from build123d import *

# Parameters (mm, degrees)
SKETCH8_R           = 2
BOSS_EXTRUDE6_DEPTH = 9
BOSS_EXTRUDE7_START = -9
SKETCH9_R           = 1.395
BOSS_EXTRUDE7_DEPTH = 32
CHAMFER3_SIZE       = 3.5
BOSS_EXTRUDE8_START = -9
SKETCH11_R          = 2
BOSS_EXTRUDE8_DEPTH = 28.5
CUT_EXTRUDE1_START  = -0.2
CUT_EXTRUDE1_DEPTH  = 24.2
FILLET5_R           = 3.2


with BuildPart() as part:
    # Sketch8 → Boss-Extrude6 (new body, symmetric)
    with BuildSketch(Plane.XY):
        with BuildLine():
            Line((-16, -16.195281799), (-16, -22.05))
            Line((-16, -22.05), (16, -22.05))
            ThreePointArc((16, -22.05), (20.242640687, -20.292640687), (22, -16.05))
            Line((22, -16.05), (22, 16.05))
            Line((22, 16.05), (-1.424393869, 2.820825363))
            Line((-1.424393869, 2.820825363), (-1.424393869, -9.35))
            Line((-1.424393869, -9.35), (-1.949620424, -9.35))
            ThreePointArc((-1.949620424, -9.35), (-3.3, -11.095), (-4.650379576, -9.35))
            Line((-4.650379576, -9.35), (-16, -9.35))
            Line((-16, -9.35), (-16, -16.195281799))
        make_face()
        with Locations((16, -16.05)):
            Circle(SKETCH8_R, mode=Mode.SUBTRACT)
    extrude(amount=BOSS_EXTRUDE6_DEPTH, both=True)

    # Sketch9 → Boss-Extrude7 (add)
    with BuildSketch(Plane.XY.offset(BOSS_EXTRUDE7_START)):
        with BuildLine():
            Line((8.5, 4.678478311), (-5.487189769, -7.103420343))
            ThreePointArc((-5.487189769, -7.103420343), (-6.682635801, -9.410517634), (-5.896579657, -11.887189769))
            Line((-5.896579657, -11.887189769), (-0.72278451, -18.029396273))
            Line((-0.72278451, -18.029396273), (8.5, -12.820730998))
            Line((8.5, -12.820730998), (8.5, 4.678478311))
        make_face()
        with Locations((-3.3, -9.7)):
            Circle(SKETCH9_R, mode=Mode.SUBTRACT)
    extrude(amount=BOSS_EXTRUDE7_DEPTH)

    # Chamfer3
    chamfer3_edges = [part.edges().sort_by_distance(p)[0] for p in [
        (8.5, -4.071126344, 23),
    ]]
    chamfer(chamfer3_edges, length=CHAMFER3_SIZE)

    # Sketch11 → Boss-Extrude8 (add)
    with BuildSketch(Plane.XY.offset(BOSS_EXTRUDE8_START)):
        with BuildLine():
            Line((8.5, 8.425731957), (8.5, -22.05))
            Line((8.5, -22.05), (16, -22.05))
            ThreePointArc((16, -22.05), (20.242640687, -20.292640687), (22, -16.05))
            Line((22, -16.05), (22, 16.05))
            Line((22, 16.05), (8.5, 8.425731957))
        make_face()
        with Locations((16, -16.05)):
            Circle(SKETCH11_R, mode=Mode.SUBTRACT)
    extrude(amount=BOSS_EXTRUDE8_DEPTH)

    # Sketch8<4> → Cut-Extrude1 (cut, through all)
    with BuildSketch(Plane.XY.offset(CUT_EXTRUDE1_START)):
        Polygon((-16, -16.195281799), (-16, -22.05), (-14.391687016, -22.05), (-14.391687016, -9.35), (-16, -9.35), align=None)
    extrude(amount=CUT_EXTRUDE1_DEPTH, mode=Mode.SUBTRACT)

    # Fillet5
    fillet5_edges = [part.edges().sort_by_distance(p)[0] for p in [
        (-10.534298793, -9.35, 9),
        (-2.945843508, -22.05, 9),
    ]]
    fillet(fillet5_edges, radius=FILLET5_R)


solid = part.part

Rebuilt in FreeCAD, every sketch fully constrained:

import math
import FreeCAD as App
import Part
import Sketcher

V = App.Vector


def edges_at(feature, points):
    """Names of the edges that pass closest to the given points."""
    edges = feature.Shape.Edges
    near = lambda p: min(range(len(edges)), key=lambda i: edges[i].distToShape(Part.Vertex(*p))[0])
    return sorted({f"Edge{near(p) + 1}" for p in points})

doc = App.newDocument("Part")
body = doc.addObject("PartDesign::Body", "Body")

# Sketch on XY plane
sketch1 = body.newObject("Sketcher::SketchObject", "Sketch")
sketch1.AttachmentSupport = (doc.getObject("XY_Plane"), [""])
sketch1.MapMode = "FlatFace"
sketch1.addGeometry([
    Part.LineSegment(V(-16, -22.1, 0), V(16, -22.1, 0)),  # 0
    Part.ArcOfCircle(Part.Circle(V(16, -16.1, 0), V(0, 0, 1), 6), math.radians(-90), math.radians(0)),  # 1
    Part.LineSegment(V(22, -16.1, 0), V(22, 16.1, 0)),  # 2
    Part.LineSegment(V(22, 16.1, 0), V(-1.4, 2.8, 0)),  # 3
    Part.LineSegment(V(-1.4, 2.8, 0), V(-1.4, -9.3, 0)),  # 4
    Part.LineSegment(V(-1.4, -9.3, 0), V(-1.9, -9.3, 0)),  # 5
    Part.ArcOfCircle(Part.Circle(V(-3.3, -9.7, 0), V(0, 0, 1), 1.4), math.radians(165), math.radians(375)),  # 6
    Part.LineSegment(V(-4.7, -9.3, 0), V(-16, -9.3, 0)),  # 7
    Part.LineSegment(V(-16, -9.3, 0), V(-16, -22.1, 0)),  # 8
    Part.Circle(V(16, -16.1, 0), V(0, 0, 1), 2),  # 9
], False)
sketch1.addConstraint([
    Sketcher.Constraint("Tangent", 0, 2, 1, 1),
    Sketcher.Constraint("Tangent", 1, 2, 2, 1),
    Sketcher.Constraint("Coincident", 2, 2, 3, 1),
    Sketcher.Constraint("Coincident", 3, 2, 4, 1),
    Sketcher.Constraint("Coincident", 4, 2, 5, 1),
    Sketcher.Constraint("Coincident", 5, 2, 6, 2),
    Sketcher.Constraint("Coincident", 6, 1, 7, 1),
    Sketcher.Constraint("Coincident", 7, 2, 8, 1),
    Sketcher.Constraint("Coincident", 8, 2, 0, 1),
    Sketcher.Constraint("Horizontal", 0),
    Sketcher.Constraint("Vertical", 2),
    Sketcher.Constraint("Vertical", 4),
    Sketcher.Constraint("Horizontal", 5),
    Sketcher.Constraint("Horizontal", 7),
    Sketcher.Constraint("Vertical", 8),
    Sketcher.Constraint("Coincident", 9, 3, 1, 3),
    Sketcher.Constraint("Horizontal", 5, 2, 6, 1),
    Sketcher.Constraint("Diameter", 9, 4.0),
    Sketcher.Constraint("Radius", 1, 6.0),
    Sketcher.Constraint("DistanceX", 0, 1, 0, 2, 32.0),
    Sketcher.Constraint("DistanceY", 2, 1, 2, 2, 32.1),
    Sketcher.Constraint("DistanceY", 8, 2, 8, 1, 12.7),
    Sketcher.Constraint("DistanceX", -1, 1, 1, 3, 16.0),
    Sketcher.Constraint("Radius", 6, 1.395),
    Sketcher.Constraint("DistanceX", 6, 3, -1, 1, 3.3),
    Sketcher.Constraint("DistanceY", 6, 3, -1, 1, 9.7),
    Sketcher.Constraint("DistanceY", 1, 3, -1, 1, 16.05),
    Sketcher.Constraint("Distance", 3, 26.90192),
    Sketcher.Constraint("DistanceX", 5, 2, 5, 1, 0.525227),
])
pad1 = body.newObject("PartDesign::Pad", "Pad")
pad1.Profile = sketch1
pad1.Length = 18
pad1.Midplane = True

# Sketch on XY plane
sketch2 = body.newObject("Sketcher::SketchObject", "Sketch001")
sketch2.AttachmentSupport = (doc.getObject("XY_Plane"), [""])
sketch2.MapMode = "FlatFace"
sketch2.AttachmentOffset = App.Placement(V(0, 0, -9), App.Rotation())
sketch2.addGeometry([
    Part.LineSegment(V(8.5, 4.7, 0), V(-5.5, -7.1, 0)),  # 0
    Part.ArcOfCircle(Part.Circle(V(-3.3, -9.7, 0), V(0, 0, 1), 3.4), math.radians(130), math.radians(220)),  # 1
    Part.LineSegment(V(-5.9, -11.9, 0), V(-0.7, -18, 0)),  # 2
    Part.LineSegment(V(-0.7, -18, 0), V(8.5, -12.8, 0)),  # 3
    Part.LineSegment(V(8.5, -12.8, 0), V(8.5, 4.7, 0)),  # 4
    Part.Circle(V(-3.3, -9.7, 0), V(0, 0, 1), 1.4),  # 5
], False)
sketch2.addConstraint([
    Sketcher.Constraint("Tangent", 0, 2, 1, 1),
    Sketcher.Constraint("Tangent", 1, 2, 2, 1),
    Sketcher.Constraint("Coincident", 2, 2, 3, 1),
    Sketcher.Constraint("Coincident", 3, 2, 4, 1),
    Sketcher.Constraint("Coincident", 4, 2, 0, 1),
    Sketcher.Constraint("Vertical", 4),
    Sketcher.Constraint("Coincident", 5, 3, 1, 3),
    Sketcher.Constraint("Perpendicular", 0, 2),
    Sketcher.Constraint("Diameter", 5, 2.79),
    Sketcher.Constraint("Radius", 1, 3.395),
    Sketcher.Constraint("DistanceX", 1, 3, -1, 1, 3.3),
    Sketcher.Constraint("DistanceY", 1, 3, -1, 1, 9.7),
    Sketcher.Constraint("DistanceX", -1, 1, 3, 2, 8.5),
    Sketcher.Constraint("Distance", 0, 18.2881),
    Sketcher.Constraint("DistanceY", 4, 1, 4, 2, 17.499209),
    Sketcher.Constraint("Distance", 2, 8.030869),
])
pad2 = body.newObject("PartDesign::Pad", "Pad001")
pad2.Profile = sketch2
pad2.Length = 32
doc.recompute()

chamfer = body.newObject("PartDesign::Chamfer", "Chamfer")
chamfer.Base = (pad2, edges_at(pad2, [(8.5, -4.071, 23)]))
chamfer.Size = 3.5

# Sketch on XY plane
sketch3 = body.newObject("Sketcher::SketchObject", "Sketch002")
sketch3.AttachmentSupport = (doc.getObject("XY_Plane"), [""])
sketch3.MapMode = "FlatFace"
sketch3.AttachmentOffset = App.Placement(V(0, 0, -9), App.Rotation())
sketch3.addGeometry([
    Part.LineSegment(V(8.5, 8.4, 0), V(8.5, -22.1, 0)),  # 0
    Part.LineSegment(V(8.5, -22.1, 0), V(16, -22.1, 0)),  # 1
    Part.ArcOfCircle(Part.Circle(V(16, -16.1, 0), V(0, 0, 1), 6), math.radians(-90), math.radians(0)),  # 2
    Part.LineSegment(V(22, -16.1, 0), V(22, 16.1, 0)),  # 3
    Part.LineSegment(V(22, 16.1, 0), V(8.5, 8.4, 0)),  # 4
    Part.Circle(V(16, -16.1, 0), V(0, 0, 1), 2),  # 5
], False)
sketch3.addConstraint([
    Sketcher.Constraint("Coincident", 0, 2, 1, 1),
    Sketcher.Constraint("Tangent", 1, 2, 2, 1),
    Sketcher.Constraint("Tangent", 2, 2, 3, 1),
    Sketcher.Constraint("Coincident", 3, 2, 4, 1),
    Sketcher.Constraint("Coincident", 4, 2, 0, 1),
    Sketcher.Constraint("Vertical", 0),
    Sketcher.Constraint("Horizontal", 1),
    Sketcher.Constraint("Vertical", 3),
    Sketcher.Constraint("Coincident", 5, 3, 2, 3),
    Sketcher.Constraint("Diameter", 5, 4.0),
    Sketcher.Constraint("Radius", 2, 6.0),
    Sketcher.Constraint("DistanceX", 1, 1, 1, 2, 7.5),
    Sketcher.Constraint("DistanceY", 3, 1, 3, 2, 32.1),
    Sketcher.Constraint("DistanceX", -1, 1, 2, 3, 16.0),
    Sketcher.Constraint("DistanceY", 2, 3, -1, 1, 16.05),
    Sketcher.Constraint("DistanceY", 0, 2, 0, 1, 30.475732),
])
pad3 = body.newObject("PartDesign::Pad", "Pad002")
pad3.Profile = sketch3
pad3.Length = 28.5

# Sketch on XY plane
sketch4 = body.newObject("Sketcher::SketchObject", "Sketch003")
sketch4.AttachmentSupport = (doc.getObject("XY_Plane"), [""])
sketch4.MapMode = "FlatFace"
sketch4.AttachmentOffset = App.Placement(V(0, 0, -0.2), App.Rotation())
sketch4.addGeometry([
    Part.LineSegment(V(-16, -22.1, 0), V(-14.4, -22.1, 0)),
    Part.LineSegment(V(-14.4, -22.1, 0), V(-14.4, -9.3, 0)),
    Part.LineSegment(V(-14.4, -9.3, 0), V(-16, -9.3, 0)),
    Part.LineSegment(V(-16, -9.3, 0), V(-16, -22.1, 0)),
], False)
sketch4.addConstraint([
    Sketcher.Constraint("Coincident", 0, 2, 1, 1),
    Sketcher.Constraint("Coincident", 1, 2, 2, 1),
    Sketcher.Constraint("Coincident", 2, 2, 3, 1),
    Sketcher.Constraint("Coincident", 3, 2, 0, 1),
    Sketcher.Constraint("Horizontal", 0),
    Sketcher.Constraint("Vertical", 1),
    Sketcher.Constraint("Horizontal", 2),
    Sketcher.Constraint("Vertical", 3),
    Sketcher.Constraint("DistanceY", 1, 1, 1, 2, 12.7),
    Sketcher.Constraint("DistanceX", 2, 2, -1, 1, 16.0),
    Sketcher.Constraint("DistanceY", 0, 2, -1, 1, 22.05),
    Sketcher.Constraint("DistanceX", 0, 1, 0, 2, 1.608313),
])
pocket1 = body.newObject("PartDesign::Pocket", "Pocket")
pocket1.Profile = sketch4
pocket1.Type = "ThroughAll"
pocket1.Reversed = True
doc.recompute()

fillet = body.newObject("PartDesign::Fillet", "Fillet")
fillet.Base = (pocket1, edges_at(pocket1, [(-10.534, -9.35, 9), (-2.946, -22.05, 9)]))
fillet.Radius = 3.2

doc.recompute()
